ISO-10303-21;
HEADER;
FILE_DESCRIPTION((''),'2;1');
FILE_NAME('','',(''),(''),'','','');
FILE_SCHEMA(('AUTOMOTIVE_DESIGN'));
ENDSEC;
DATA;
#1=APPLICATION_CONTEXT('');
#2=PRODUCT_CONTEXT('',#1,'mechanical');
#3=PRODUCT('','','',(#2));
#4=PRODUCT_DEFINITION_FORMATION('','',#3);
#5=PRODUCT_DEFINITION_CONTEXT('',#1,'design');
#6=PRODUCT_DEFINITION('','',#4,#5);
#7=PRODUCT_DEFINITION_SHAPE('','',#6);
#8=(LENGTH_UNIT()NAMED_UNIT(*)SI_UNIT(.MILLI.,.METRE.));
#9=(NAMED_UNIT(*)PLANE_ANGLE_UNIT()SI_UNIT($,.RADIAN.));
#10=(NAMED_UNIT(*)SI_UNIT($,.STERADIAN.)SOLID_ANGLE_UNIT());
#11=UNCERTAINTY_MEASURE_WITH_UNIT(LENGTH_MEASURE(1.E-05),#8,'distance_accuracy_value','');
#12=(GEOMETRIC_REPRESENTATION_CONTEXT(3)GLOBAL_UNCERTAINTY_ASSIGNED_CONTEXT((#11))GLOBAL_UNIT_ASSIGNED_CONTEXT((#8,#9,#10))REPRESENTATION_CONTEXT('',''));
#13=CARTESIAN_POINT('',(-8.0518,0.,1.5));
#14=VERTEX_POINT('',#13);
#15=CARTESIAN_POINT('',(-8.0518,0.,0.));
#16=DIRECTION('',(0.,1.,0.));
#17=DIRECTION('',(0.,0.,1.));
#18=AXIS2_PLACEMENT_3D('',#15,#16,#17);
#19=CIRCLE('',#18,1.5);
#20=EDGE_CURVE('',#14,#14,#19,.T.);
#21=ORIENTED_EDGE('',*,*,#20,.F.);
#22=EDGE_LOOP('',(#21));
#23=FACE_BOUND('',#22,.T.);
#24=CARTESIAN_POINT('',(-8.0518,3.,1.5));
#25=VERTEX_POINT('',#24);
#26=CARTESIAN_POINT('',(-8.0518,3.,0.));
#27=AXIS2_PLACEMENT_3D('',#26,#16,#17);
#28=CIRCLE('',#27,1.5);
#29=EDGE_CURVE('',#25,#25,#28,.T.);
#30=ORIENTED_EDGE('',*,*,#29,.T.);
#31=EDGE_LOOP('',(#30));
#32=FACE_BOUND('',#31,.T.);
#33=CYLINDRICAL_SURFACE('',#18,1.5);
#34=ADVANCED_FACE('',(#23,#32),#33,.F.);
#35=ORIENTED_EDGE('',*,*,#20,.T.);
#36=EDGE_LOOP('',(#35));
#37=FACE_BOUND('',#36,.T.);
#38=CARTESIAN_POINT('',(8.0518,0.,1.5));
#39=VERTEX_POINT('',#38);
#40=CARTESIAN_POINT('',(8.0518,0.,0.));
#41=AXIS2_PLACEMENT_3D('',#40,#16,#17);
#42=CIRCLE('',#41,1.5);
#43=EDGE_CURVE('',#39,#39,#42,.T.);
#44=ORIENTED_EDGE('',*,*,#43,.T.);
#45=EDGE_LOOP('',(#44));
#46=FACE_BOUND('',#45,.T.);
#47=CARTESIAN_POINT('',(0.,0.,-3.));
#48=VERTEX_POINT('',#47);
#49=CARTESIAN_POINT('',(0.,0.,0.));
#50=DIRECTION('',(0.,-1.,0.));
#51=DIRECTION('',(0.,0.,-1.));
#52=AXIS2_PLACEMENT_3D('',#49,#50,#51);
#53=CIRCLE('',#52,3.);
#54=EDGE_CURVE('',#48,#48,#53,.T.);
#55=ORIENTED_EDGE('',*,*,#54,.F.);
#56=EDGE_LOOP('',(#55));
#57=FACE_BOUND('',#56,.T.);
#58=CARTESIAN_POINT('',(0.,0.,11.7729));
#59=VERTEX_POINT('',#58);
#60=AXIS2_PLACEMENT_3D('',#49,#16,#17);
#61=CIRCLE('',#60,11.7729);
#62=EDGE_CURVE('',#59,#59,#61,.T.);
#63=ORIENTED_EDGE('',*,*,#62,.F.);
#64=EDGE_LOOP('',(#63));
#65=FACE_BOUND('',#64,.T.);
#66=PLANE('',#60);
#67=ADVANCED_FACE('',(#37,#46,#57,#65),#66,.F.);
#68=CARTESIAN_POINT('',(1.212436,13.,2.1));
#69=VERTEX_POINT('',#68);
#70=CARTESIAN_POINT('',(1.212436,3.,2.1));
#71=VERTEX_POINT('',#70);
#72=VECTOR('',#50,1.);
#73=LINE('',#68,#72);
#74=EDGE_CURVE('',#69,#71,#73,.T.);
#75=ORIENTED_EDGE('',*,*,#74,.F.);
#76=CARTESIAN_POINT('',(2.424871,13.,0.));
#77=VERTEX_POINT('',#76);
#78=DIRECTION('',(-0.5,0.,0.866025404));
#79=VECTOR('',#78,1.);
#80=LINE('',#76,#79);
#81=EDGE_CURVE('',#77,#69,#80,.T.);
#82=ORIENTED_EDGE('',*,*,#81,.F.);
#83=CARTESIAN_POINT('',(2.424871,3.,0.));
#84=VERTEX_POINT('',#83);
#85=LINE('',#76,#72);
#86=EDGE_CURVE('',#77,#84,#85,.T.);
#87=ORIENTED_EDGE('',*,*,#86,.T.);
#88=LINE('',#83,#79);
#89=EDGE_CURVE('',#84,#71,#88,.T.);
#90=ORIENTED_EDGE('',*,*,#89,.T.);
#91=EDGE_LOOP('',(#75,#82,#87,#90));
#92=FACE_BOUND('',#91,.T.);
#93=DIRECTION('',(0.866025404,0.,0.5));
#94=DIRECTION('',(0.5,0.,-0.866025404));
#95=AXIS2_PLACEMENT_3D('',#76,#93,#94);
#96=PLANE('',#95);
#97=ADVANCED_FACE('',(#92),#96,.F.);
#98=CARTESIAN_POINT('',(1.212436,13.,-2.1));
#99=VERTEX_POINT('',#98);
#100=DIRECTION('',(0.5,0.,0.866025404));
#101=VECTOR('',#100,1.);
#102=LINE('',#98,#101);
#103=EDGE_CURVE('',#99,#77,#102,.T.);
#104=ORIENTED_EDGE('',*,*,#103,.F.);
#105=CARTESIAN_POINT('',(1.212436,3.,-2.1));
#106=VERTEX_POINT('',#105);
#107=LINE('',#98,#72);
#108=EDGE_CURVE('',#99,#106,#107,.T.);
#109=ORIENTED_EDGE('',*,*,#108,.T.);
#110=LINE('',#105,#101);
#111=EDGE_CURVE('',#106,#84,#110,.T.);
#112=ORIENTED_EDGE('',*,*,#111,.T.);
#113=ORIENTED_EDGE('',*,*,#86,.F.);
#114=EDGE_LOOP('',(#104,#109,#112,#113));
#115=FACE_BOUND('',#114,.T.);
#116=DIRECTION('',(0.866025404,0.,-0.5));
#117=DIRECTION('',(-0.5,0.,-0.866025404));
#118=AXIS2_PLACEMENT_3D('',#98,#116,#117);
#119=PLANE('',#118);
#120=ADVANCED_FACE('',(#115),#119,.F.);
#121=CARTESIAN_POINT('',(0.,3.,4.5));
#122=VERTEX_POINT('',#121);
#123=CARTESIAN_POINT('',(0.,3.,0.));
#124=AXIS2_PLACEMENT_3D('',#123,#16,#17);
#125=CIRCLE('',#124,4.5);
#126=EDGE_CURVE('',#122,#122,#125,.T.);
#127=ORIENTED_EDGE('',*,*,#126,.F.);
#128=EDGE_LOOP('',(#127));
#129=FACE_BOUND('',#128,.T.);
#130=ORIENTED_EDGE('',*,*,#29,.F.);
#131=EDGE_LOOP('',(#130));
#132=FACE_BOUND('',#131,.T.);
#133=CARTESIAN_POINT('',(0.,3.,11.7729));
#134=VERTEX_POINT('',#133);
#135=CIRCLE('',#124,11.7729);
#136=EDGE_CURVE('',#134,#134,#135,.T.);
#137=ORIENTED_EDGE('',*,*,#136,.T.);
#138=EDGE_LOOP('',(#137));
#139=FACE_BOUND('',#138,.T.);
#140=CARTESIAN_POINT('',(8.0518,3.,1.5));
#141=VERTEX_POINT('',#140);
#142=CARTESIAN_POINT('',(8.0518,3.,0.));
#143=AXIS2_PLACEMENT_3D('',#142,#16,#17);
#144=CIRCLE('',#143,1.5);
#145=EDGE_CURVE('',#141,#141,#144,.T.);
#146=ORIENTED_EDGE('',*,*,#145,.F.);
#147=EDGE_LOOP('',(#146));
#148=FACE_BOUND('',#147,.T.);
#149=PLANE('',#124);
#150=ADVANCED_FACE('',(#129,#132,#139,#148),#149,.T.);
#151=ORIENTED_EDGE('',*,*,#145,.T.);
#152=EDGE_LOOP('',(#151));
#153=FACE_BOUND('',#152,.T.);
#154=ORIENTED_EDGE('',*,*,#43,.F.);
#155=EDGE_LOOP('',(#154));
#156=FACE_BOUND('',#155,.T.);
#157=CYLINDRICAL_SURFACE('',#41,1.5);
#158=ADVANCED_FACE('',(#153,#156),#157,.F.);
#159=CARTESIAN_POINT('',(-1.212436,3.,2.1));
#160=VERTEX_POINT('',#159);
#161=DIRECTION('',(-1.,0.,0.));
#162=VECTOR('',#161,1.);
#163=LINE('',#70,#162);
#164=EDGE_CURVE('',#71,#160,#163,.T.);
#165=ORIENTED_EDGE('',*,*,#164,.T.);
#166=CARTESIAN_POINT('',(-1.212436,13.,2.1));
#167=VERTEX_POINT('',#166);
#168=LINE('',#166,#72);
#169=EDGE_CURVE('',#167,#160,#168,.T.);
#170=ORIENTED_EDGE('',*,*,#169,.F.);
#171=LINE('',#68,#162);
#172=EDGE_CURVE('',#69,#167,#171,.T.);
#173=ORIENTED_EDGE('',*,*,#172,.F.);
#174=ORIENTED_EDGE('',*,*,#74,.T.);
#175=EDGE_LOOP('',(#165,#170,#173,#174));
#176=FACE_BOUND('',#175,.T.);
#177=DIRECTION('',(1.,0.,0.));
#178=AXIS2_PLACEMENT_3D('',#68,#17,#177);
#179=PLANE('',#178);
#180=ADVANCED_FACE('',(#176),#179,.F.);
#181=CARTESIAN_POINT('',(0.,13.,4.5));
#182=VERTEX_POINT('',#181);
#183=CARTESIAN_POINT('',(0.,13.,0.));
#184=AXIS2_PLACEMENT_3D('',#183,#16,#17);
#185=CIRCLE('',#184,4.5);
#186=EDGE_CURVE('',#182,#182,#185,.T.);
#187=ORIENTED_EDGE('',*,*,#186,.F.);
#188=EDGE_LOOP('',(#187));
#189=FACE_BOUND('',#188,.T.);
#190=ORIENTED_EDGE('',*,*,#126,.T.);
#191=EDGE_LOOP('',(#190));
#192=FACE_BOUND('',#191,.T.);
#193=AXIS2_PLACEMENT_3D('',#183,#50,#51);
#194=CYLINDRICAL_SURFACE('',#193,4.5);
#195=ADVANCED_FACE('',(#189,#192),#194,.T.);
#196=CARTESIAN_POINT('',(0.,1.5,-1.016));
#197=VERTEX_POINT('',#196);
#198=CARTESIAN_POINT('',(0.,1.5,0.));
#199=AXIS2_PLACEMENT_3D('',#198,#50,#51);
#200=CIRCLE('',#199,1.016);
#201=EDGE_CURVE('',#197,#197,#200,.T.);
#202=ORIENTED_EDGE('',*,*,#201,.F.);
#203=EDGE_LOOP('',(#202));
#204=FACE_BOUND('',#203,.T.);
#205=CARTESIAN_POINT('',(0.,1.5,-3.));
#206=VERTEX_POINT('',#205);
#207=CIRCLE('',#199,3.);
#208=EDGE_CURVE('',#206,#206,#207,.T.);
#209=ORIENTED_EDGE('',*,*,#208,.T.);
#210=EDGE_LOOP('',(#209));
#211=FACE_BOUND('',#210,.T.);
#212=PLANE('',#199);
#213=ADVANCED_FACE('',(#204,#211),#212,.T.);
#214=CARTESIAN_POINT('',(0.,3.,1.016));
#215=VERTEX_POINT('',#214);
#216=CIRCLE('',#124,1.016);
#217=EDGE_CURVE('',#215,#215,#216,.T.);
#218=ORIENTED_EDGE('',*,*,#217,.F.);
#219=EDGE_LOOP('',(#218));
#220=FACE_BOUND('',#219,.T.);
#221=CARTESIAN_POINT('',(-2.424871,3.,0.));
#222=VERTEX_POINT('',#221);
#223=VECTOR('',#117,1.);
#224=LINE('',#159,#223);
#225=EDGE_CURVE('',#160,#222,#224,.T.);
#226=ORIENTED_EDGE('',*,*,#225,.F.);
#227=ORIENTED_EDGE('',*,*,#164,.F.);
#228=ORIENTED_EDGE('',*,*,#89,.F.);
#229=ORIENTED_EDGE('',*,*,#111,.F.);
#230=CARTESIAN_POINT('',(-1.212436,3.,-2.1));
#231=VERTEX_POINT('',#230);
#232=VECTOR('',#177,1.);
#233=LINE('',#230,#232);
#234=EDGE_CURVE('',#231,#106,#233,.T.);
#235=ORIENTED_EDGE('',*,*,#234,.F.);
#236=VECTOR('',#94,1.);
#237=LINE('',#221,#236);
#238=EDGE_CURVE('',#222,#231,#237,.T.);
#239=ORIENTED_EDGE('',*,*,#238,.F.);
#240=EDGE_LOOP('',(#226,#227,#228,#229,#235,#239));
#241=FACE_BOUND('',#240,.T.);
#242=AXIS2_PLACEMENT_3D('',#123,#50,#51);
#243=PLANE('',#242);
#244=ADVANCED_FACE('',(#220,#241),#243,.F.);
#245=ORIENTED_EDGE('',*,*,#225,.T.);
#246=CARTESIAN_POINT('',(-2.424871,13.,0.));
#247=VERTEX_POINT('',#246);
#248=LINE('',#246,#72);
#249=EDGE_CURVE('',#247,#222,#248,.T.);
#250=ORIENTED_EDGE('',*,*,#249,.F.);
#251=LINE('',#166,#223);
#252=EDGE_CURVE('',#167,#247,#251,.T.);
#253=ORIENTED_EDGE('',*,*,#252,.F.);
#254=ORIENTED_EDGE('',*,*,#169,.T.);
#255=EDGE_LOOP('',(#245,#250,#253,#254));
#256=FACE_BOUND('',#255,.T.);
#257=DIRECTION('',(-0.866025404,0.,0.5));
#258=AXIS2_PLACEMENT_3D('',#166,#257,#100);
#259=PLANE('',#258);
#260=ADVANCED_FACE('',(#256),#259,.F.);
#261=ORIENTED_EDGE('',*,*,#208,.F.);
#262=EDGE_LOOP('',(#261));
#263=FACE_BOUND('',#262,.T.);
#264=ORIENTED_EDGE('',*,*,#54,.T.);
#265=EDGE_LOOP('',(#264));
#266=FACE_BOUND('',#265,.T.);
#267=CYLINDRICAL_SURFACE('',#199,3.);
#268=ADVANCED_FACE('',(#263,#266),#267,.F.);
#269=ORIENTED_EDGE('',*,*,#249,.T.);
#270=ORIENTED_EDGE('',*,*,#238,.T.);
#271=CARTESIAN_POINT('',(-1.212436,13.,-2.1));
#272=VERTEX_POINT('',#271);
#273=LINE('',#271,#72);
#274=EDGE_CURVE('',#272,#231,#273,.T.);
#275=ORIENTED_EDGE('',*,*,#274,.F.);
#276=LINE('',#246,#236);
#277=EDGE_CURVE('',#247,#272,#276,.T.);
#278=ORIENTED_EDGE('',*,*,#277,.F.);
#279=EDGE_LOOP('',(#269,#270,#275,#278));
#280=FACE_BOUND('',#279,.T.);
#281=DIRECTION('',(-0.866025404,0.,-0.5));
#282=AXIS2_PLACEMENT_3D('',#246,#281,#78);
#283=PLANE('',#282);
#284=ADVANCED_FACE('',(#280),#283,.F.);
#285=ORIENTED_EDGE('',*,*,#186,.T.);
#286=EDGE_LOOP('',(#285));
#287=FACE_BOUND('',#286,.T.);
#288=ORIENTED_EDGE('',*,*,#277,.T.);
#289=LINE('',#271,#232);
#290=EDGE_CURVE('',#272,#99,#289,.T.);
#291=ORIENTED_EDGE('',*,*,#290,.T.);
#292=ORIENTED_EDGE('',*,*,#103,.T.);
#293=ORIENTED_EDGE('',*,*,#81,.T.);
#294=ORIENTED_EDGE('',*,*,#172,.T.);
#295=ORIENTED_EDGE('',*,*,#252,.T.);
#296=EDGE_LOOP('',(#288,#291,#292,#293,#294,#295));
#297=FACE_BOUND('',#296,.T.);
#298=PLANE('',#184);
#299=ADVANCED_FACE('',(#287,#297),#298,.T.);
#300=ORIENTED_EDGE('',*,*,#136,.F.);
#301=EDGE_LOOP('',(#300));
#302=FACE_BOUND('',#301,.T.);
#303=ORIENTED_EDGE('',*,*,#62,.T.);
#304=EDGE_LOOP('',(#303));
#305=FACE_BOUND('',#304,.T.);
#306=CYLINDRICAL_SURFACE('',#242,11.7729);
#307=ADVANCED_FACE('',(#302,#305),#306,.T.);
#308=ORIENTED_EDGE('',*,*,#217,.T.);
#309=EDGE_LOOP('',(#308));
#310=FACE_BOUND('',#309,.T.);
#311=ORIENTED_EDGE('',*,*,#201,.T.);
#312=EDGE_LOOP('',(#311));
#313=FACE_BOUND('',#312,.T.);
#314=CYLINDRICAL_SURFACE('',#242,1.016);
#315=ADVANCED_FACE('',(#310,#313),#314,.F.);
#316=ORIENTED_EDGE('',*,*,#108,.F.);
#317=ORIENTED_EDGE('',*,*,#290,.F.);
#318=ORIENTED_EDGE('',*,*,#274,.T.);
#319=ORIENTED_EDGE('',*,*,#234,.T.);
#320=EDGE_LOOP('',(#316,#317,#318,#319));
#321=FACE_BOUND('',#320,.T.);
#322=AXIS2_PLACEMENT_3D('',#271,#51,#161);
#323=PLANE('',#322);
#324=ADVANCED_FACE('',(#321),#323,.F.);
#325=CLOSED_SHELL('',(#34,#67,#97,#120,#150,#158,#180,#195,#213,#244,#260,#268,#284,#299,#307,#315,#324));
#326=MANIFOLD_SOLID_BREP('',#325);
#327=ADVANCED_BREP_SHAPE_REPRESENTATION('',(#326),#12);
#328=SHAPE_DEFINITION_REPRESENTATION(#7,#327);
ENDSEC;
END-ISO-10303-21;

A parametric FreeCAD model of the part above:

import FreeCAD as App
import Part
import Sketcher

V = App.Vector
Q = App.Units.Quantity

doc = App.newDocument("Part")
body = doc.addObject("PartDesign::Body", "Body")

# Sketch on XZ plane
sketch1 = body.newObject("Sketcher::SketchObject", "Sketch")
sketch1.AttachmentSupport = (doc.getObject("XZ_Plane"), [""])
sketch1.MapMode = "FlatFace"
sketch1.addGeometry(Part.Circle(V(0, 0, 0), V(0, 0, 1), 11.8), False)
sketch1.addGeometry(Part.Circle(V(0, 0, 0), V(0, 0, 1), 1), False)
sketch1.addConstraint(Sketcher.Constraint("Coincident", 0, 3, -1, 1))
sketch1.addConstraint(Sketcher.Constraint("Coincident", 1, 3, -1, 1))
sketch1.addConstraint(Sketcher.Constraint("Diameter", 1, 2.032))
sketch1.addConstraint(Sketcher.Constraint("Diameter", 0, 23.5458))
pad1 = body.newObject("PartDesign::Pad", "Pad")
pad1.Profile = sketch1
pad1.Length = 3
pad1.Reversed = True

# Sketch on XZ plane
sketch2 = body.newObject("Sketcher::SketchObject", "Sketch001")
sketch2.AttachmentSupport = (doc.getObject("XZ_Plane"), [""])
sketch2.MapMode = "FlatFace"
sketch2.AttachmentOffset = App.Placement(V(0, 0, -3), App.Rotation())
sketch2.addGeometry(Part.Circle(V(8.1, 0, 0), V(0, 0, 1), 1.5), False)
sketch2.addGeometry(Part.Circle(V(-8.1, 0, 0), V(0, 0, 1), 1.5), False)
sketch2.addConstraint(Sketcher.Constraint("Equal", 0, 1))
sketch2.addConstraint(Sketcher.Constraint("Symmetric", 0, 3, 1, 3, -1, 1))
sketch2.addConstraint(Sketcher.Constraint("PointOnObject", 0, 3, -1))
sketch2.addConstraint(Sketcher.Constraint("Diameter", 0, 3.0))
sketch2.addConstraint(Sketcher.Constraint("DistanceX", -1, 1, 0, 3, 8.0518))
pocket1 = body.newObject("PartDesign::Pocket", "Pocket")
pocket1.Profile = sketch2
pocket1.Type = "ThroughAll"
pocket1.Reversed = True

# Sketch on XZ plane
sketch3 = body.newObject("Sketcher::SketchObject", "Sketch002")
sketch3.AttachmentSupport = (doc.getObject("XZ_Plane"), [""])
sketch3.MapMode = "FlatFace"
sketch3.addGeometry(Part.Circle(V(0, 0, 0), V(0, 0, 1), 3), False)
sketch3.addConstraint(Sketcher.Constraint("Coincident", 0, 3, -1, 1))
sketch3.addConstraint(Sketcher.Constraint("Diameter", 0, 6.0))
pocket2 = body.newObject("PartDesign::Pocket", "Pocket001")
pocket2.Profile = sketch3
pocket2.Length = 1.5

# Sketch on XZ plane
sketch4 = body.newObject("Sketcher::SketchObject", "Sketch003")
sketch4.AttachmentSupport = (doc.getObject("XZ_Plane"), [""])
sketch4.MapMode = "FlatFace"
sketch4.AttachmentOffset = App.Placement(V(0, 0, -3), App.Rotation())
sketch4.addGeometry(Part.Circle(V(0, 0, 0), V(0, 0, 1), 4.5), False)
sketch4.addConstraint(Sketcher.Constraint("Coincident", 0, 3, -1, 1))
sketch4.addConstraint(Sketcher.Constraint("Diameter", 0, 9.0))
pad2 = body.newObject("PartDesign::Pad", "Pad001")
pad2.Profile = sketch4
pad2.Length = 10
pad2.Reversed = True

# Sketch on XZ plane
sketch5 = body.newObject("Sketcher::SketchObject", "Sketch004")
sketch5.AttachmentSupport = (doc.getObject("XZ_Plane"), [""])
sketch5.MapMode = "FlatFace"
sketch5.AttachmentOffset = App.Placement(V(0, 0, -3), App.Rotation())
sketch5.addGeometry(Part.LineSegment(V(2.4, 0, 0), V(1.2, 2.1, 0)), False)
sketch5.addGeometry(Part.LineSegment(V(1.2, 2.1, 0), V(-1.2, 2.1, 0)), False)
sketch5.addGeometry(Part.LineSegment(V(-1.2, 2.1, 0), V(-2.4, 0, 0)), False)
sketch5.addGeometry(Part.LineSegment(V(-2.4, 0, 0), V(-1.2, -2.1, 0)), False)
sketch5.addGeometry(Part.LineSegment(V(-1.2, -2.1, 0), V(1.2, -2.1, 0)), False)
sketch5.addGeometry(Part.LineSegment(V(1.2, -2.1, 0), V(2.4, 0, 0)), False)
sketch5.addConstraint(Sketcher.Constraint("Coincident", 0, 2, 1, 1))
sketch5.addConstraint(Sketcher.Constraint("Coincident", 1, 2, 2, 1))
sketch5.addConstraint(Sketcher.Constraint("Coincident", 2, 2, 3, 1))
sketch5.addConstraint(Sketcher.Constraint("Coincident", 3, 2, 4, 1))
sketch5.addConstraint(Sketcher.Constraint("Coincident", 4, 2, 5, 1))
sketch5.addConstraint(Sketcher.Constraint("Coincident", 5, 2, 0, 1))
sketch5.addConstraint(Sketcher.Constraint("Horizontal", 1))
sketch5.addConstraint(Sketcher.Constraint("Horizontal", 4))
sketch5.addConstraint(Sketcher.Constraint("Symmetric", 0, 2, 3, 2, -1, 1))
sketch5.addConstraint(Sketcher.Constraint("Symmetric", 2, 2, 5, 2, -1, 1))
sketch5.addConstraint(Sketcher.Constraint("PointOnObject", 2, 2, -1))
sketch5.addConstraint(Sketcher.Constraint("Parallel", 2, 5))
sketch5.addConstraint(Sketcher.Constraint("Vertical", 1, 2, 3, 2))
sketch5.addConstraint(Sketcher.Constraint("Angle", 0, Q("120 deg")))
sketch5.addConstraint(Sketcher.Constraint("DistanceY", -1, 1, 0, 2, 2.1))
sketch5.addConstraint(Sketcher.Constraint("DistanceX", 1, 2, 1, 1, 2.424871))
pocket3 = body.newObject("PartDesign::Pocket", "Pocket002")
pocket3.Profile = sketch5
pocket3.Type = "ThroughAll"

doc.recompute()
